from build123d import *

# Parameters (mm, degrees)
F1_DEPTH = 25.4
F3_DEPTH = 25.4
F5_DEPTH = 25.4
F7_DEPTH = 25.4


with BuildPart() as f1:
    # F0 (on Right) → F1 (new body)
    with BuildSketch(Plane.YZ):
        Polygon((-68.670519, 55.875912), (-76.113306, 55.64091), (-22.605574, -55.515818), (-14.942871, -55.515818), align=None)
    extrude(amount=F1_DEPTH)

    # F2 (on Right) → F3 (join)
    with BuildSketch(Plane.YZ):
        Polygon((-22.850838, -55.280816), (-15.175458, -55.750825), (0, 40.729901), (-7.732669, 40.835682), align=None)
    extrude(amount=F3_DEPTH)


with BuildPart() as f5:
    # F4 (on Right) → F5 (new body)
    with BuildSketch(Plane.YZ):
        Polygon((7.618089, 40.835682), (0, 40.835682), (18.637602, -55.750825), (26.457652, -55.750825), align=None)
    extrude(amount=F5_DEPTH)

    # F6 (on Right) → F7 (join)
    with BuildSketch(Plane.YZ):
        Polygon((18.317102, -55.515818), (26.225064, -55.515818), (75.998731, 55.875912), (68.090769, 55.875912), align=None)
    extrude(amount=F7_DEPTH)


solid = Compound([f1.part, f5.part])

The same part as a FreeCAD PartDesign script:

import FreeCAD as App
import Part
import Sketcher

doc = App.newDocument("Part")
params = doc.addObject("Spreadsheet::Sheet", "Params")
for row, (alias, value) in enumerate([
    ("pad1_length", "1 in"),
    ("pad2_length", "1 in"),
    ("pad3_length", "1 in"),
    ("pad4_length", "1 in"),
], start=1):
    params.set(f"A{row}", alias)
    params.set(f"B{row}", "=" + value)
    params.setAlias(f"B{row}", alias)

body = doc.addObject("PartDesign::Body", "Body")

# Sketch on YZ plane
sketch1 = body.newObject("Sketcher::SketchObject", "Sketch")
sketch1.AttachmentSupport = (doc.getObject("YZ_Plane"), [""])
sketch1.MapMode = "FlatFace"
sketch1.addGeometry(Part.LineSegment(App.Vector(-68.670519, 55.875912, 0), App.Vector(-76.113306, 55.64091, 0)), False)
sketch1.addGeometry(Part.LineSegment(App.Vector(-76.113306, 55.64091, 0), App.Vector(-22.605574, -55.515818, 0)), False)
sketch1.addGeometry(Part.LineSegment(App.Vector(-22.605574, -55.515818, 0), App.Vector(-14.942871, -55.515818, 0)), False)
sketch1.addGeometry(Part.LineSegment(App.Vector(-14.942871, -55.515818, 0), App.Vector(-68.670519, 55.875912, 0)), False)
sketch1.addConstraint(Sketcher.Constraint("Coincident", 0, 2, 1, 1))
sketch1.addConstraint(Sketcher.Constraint("Coincident", 1, 2, 2, 1))
sketch1.addConstraint(Sketcher.Constraint("Coincident", 2, 2, 3, 1))
sketch1.addConstraint(Sketcher.Constraint("Coincident", 3, 2, 0, 1))
sketch1.addConstraint(Sketcher.Constraint("Horizontal", 2))
sketch1.addConstraint(Sketcher.Constraint("DistanceX", 2, 1, 2, 2, 7.662703))
sketch1.addConstraint(Sketcher.Constraint("DistanceY", -1, 1, 0, 2, 55.64091))
sketch1.addConstraint(Sketcher.Constraint("DistanceY", 1, 2, -1, 1, 55.515818))
sketch1.addConstraint(Sketcher.Constraint("DistanceX", 2, 2, -1, 1, 14.942871))
sketch1.addConstraint(Sketcher.Constraint("DistanceX", 3, 2, -1, 1, 68.670519))
sketch1.addConstraint(Sketcher.Constraint("DistanceX", 0, 2, 1, 2, 53.507732))
sketch1.addConstraint(Sketcher.Constraint("DistanceY", 1, 2, 3, 2, 111.39173))
pad1 = body.newObject("PartDesign::Pad", "Pad")
pad1.Profile = sketch1
pad1.setExpression("Length", "Params.pad1_length")

# Sketch on YZ plane
sketch2 = body.newObject("Sketcher::SketchObject", "Sketch001")
sketch2.AttachmentSupport = (doc.getObject("YZ_Plane"), [""])
sketch2.MapMode = "FlatFace"
sketch2.addGeometry(Part.LineSegment(App.Vector(-22.850838, -55.280816, 0), App.Vector(-15.175458, -55.750825, 0)), False)
sketch2.addGeometry(Part.LineSegment(App.Vector(-15.175458, -55.750825, 0), App.Vector(0, 40.729901, 0)), False)
sketch2.addGeometry(Part.LineSegment(App.Vector(0, 40.729901, 0), App.Vector(-7.732669, 40.835682, 0)), False)
sketch2.addGeometry(Part.LineSegment(App.Vector(-7.732669, 40.835682, 0), App.Vector(-22.850838, -55.280816, 0)), False)
sketch2.addConstraint(Sketcher.Constraint("Coincident", 0, 2, 1, 1))
sketch2.addConstraint(Sketcher.Constraint("Coincident", 1, 2, 2, 1))
sketch2.addConstraint(Sketcher.Constraint("Coincident", 2, 2, 3, 1))
sketch2.addConstraint(Sketcher.Constraint("Coincident", 3, 2, 0, 1))
sketch2.addConstraint(Sketcher.Constraint("PointOnObject", 1, 2, -2))
sketch2.addConstraint(Sketcher.Constraint("Parallel", 1, 3))
sketch2.addConstraint(Sketcher.Constraint("DistanceY", -1, 1, 1, 2, 40.729901))
sketch2.addConstraint(Sketcher.Constraint("DistanceY", 3, 2, 2, 2, 96.116498))
sketch2.addConstraint(Sketcher.Constraint("Distance", 1, 97.666908))
sketch2.addConstraint(Sketcher.Constraint("DistanceX", 0, 2, -1, 1, 15.175458))
sketch2.addConstraint(Sketcher.Constraint("DistanceX", 2, 2, -1, 1, 7.732669))
sketch2.addConstraint(Sketcher.Constraint("DistanceY", -1, 1, 2, 2, 40.835682))
pad2 = body.newObject("PartDesign::Pad", "Pad001")
pad2.Profile = sketch2
pad2.setExpression("Length", "Params.pad2_length")
body2 = doc.addObject("PartDesign::Body", "Body001")

# Sketch on YZ plane
sketch3 = body2.newObject("Sketcher::SketchObject", "Sketch002")
sketch3.AttachmentSupport = (doc.getObject("YZ_Plane001"), [""])
sketch3.MapMode = "FlatFace"
sketch3.addGeometry(Part.LineSegment(App.Vector(7.618089, 40.835682, 0), App.Vector(0, 40.835682, 0)), False)
sketch3.addGeometry(Part.LineSegment(App.Vector(0, 40.835682, 0), App.Vector(18.637602, -55.750825, 0)), False)
sketch3.addGeometry(Part.LineSegment(App.Vector(18.637602, -55.750825, 0), App.Vector(26.457652, -55.750825, 0)), False)
sketch3.addGeometry(Part.LineSegment(App.Vector(26.457652, -55.750825, 0), App.Vector(7.618089, 40.835682, 0)), False)
sketch3.addConstraint(Sketcher.Constraint("Coincident", 0, 2, 1, 1))
sketch3.addConstraint(Sketcher.Constraint("Coincident", 1, 2, 2, 1))
sketch3.addConstraint(Sketcher.Constraint("Coincident", 2, 2, 3, 1))
sketch3.addConstraint(Sketcher.Constraint("Coincident", 3, 2, 0, 1))
sketch3.addConstraint(Sketcher.Constraint("Horizontal", 0))
sketch3.addConstraint(Sketcher.Constraint("Horizontal", 2))
sketch3.addConstraint(Sketcher.Constraint("PointOnObject", 0, 2, -2))
sketch3.addConstraint(Sketcher.Constraint("DistanceX", 0, 2, 0, 1, 7.618089))
sketch3.addConstraint(Sketcher.Constraint("DistanceX", 2, 1, 2, 2, 7.82005))
sketch3.addConstraint(Sketcher.Constraint("Distance", 3, 98.40672))
sketch3.addConstraint(Sketcher.Constraint("DistanceY", -1, 1, 0, 2, 40.835682))
sketch3.addConstraint(Sketcher.Constraint("DistanceX", -1, 1, 2, 2, 26.457652))
pad3 = body2.newObject("PartDesign::Pad", "Pad002")
pad3.Profile = sketch3
pad3.setExpression("Length", "Params.pad3_length")

# Sketch on YZ plane
sketch4 = body2.newObject("Sketcher::SketchObject", "Sketch003")
sketch4.AttachmentSupport = (doc.getObject("YZ_Plane001"), [""])
sketch4.MapMode = "FlatFace"
sketch4.addGeometry(Part.LineSegment(App.Vector(18.317102, -55.515818, 0), App.Vector(26.225064, -55.515818, 0)), False)
sketch4.addGeometry(Part.LineSegment(App.Vector(26.225064, -55.515818, 0), App.Vector(75.998731, 55.875912, 0)), False)
sketch4.addGeometry(Part.LineSegment(App.Vector(75.998731, 55.875912, 0), App.Vector(68.090769, 55.875912, 0)), False)
sketch4.addGeometry(Part.LineSegment(App.Vector(68.090769, 55.875912, 0), App.Vector(18.317102, -55.515818, 0)), False)
sketch4.addConstraint(Sketcher.Constraint("Coincident", 0, 2, 1, 1))
sketch4.addConstraint(Sketcher.Constraint("Coincident", 1, 2, 2, 1))
sketch4.addConstraint(Sketcher.Constraint("Coincident", 2, 2, 3, 1))
sketch4.addConstraint(Sketcher.Constraint("Coincident", 3, 2, 0, 1))
sketch4.addConstraint(Sketcher.Constraint("Horizontal", 0))
sketch4.addConstraint(Sketcher.Constraint("Horizontal", 2))
sketch4.addConstraint(Sketcher.Constraint("Parallel", 1, 3))
sketch4.addConstraint(Sketcher.Constraint("DistanceX", -1, 1, 3, 2, 18.317102))
sketch4.addConstraint(Sketcher.Constraint("DistanceX", 0, 1, 0, 2, 7.907962))
sketch4.addConstraint(Sketcher.Constraint("DistanceY", 0, 2, -1, 1, 55.515818))
sketch4.addConstraint(Sketcher.Constraint("DistanceX", -1, 1, 1, 2, 75.998731))
sketch4.addConstraint(Sketcher.Constraint("DistanceY", 0, 2, 1, 2, 111.39173))
pad4 = body2.newObject("PartDesign::Pad", "Pad003")
pad4.Profile = sketch4
pad4.setExpression("Length", "Params.pad4_length")

doc.recompute()
